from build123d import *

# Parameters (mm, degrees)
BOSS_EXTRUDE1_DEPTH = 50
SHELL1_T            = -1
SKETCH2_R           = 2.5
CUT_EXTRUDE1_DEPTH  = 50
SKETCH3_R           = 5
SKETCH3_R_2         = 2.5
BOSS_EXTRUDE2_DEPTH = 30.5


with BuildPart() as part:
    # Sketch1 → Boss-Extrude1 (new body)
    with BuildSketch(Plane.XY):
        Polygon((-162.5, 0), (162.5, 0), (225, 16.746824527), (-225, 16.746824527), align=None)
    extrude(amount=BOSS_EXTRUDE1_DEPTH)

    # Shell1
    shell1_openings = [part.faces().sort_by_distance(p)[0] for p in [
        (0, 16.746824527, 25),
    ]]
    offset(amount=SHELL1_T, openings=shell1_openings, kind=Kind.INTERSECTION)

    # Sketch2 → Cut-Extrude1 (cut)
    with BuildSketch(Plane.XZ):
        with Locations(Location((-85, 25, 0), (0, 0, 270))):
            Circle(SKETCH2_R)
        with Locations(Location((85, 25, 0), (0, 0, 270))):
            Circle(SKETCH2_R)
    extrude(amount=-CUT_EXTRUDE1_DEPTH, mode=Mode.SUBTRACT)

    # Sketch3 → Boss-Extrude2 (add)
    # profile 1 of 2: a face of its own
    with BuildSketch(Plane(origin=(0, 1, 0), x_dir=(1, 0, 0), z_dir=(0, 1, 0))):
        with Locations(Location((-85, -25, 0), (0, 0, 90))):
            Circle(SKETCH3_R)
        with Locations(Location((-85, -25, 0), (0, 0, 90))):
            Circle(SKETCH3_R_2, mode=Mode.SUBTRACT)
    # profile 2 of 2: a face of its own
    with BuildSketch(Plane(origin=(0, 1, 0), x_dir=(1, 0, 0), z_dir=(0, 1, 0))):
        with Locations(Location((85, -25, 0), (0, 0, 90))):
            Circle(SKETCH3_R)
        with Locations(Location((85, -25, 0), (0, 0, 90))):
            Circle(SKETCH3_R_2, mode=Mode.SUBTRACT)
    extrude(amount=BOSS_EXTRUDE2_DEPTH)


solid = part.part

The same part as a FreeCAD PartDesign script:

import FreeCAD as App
import Part
import Sketcher
Q = App.Units.Quantity


def faces_at(feature, points):
    """Names of the faces that lie closest to the given points."""
    faces = feature.Shape.Faces
    near = lambda p: min(range(len(faces)), key=lambda i: faces[i].distToShape(Part.Vertex(*p))[0])
    return sorted({f"Face{near(p) + 1}" for p in points})


def add_polygon(sketch, points):
    """Adds a closed chain of lines whose ends are joined by coincident constraints."""
    first, n = sketch.GeometryCount, len(points)
    for a, b in zip(points, points[1:] + points[:1]):
        sketch.addGeometry(Part.LineSegment(App.Vector(*a, 0), App.Vector(*b, 0)), False)
    for i in range(n):
        sketch.addConstraint(Sketcher.Constraint("Coincident", first + i, 2, first + (i + 1) % n, 1))

doc = App.newDocument("Part")
params = doc.addObject("Spreadsheet::Sheet", "Params")
for row, (alias, value) in enumerate([
    ("sketch1_width", "325 mm"),
    ("sketch1_width2", "450 mm"),
    ("pad1_length", "50 mm"),
    ("thickness_wall", "1 mm"),
    ("sketch2_diameter", "5 mm"),
    ("pocket1_length", "50 mm"),
    ("sketch3_diameter", "10 mm"),
    ("sketch3_diameter2", "5 mm"),
    ("pad2_length", "30.5 mm"),
], start=1):
    params.set(f"A{row}", alias)
    params.set(f"B{row}", "=" + value)
    params.setAlias(f"B{row}", alias)

body = doc.addObject("PartDesign::Body", "Body")

# Sketch on XY plane
sketch1 = body.newObject("Sketcher::SketchObject", "Sketch")
sketch1.AttachmentSupport = (doc.getObject("XY_Plane"), [""])
sketch1.MapMode = "FlatFace"
add_polygon(sketch1, [(-162, 0), (162, 0), (225, 17), (-225, 17)])  # lines 0-3
sketch1.addConstraint(Sketcher.Constraint("Horizontal", 0))
sketch1.addConstraint(Sketcher.Constraint("Horizontal", 2))
sketch1.addConstraint(Sketcher.Constraint("Symmetric", 0, 2, 3, 2, -1, 1))
sketch1.addConstraint(Sketcher.Constraint("Equal", 1, 3))
sketch1.addConstraint(Sketcher.Constraint("DistanceX", 0, 1, 0, 2, Q("325 mm")))
sketch1.addConstraint(Sketcher.Constraint("DistanceX", 2, 2, 2, 1, Q("450 mm")))
sketch1.addConstraint(Sketcher.Constraint("Angle", 1, Q("15 deg")))
sketch1.setExpression("Constraints[8]", "Params.sketch1_width")
sketch1.setExpression("Constraints[9]", "Params.sketch1_width2")
pad1 = body.newObject("PartDesign::Pad", "Pad")
pad1.Profile = sketch1
pad1.setExpression("Length", "Params.pad1_length")
doc.recompute()

thickness = body.newObject("PartDesign::Thickness", "Thickness")
thickness.Base = (pad1, faces_at(pad1, [(0, 16.747, 25)]))
thickness.setExpression("Value", "Params.thickness_wall")
thickness.Reversed = True
thickness.Join = "Intersection"

# Sketch on XZ plane
sketch2 = body.newObject("Sketcher::SketchObject", "Sketch001")
sketch2.AttachmentSupport = (doc.getObject("XZ_Plane"), [""])
sketch2.MapMode = "FlatFace"
sketch2.addGeometry(Part.Circle(App.Vector(-85, 25, 0), App.Vector(0, 0, 1), 2.5), False)
sketch2.addGeometry(Part.Circle(App.Vector(85, 25, 0), App.Vector(0, 0, 1), 2.5), False)
sketch2.addConstraint(Sketcher.Constraint("Equal", 0, 1))
sketch2.addConstraint(Sketcher.Constraint("Symmetric", 0, 3, 1, 3, -2))
sketch2.addConstraint(Sketcher.Constraint("Diameter", 0, Q("5 mm")))
sketch2.addConstraint(Sketcher.Constraint("DistanceX", 0, 3, -1, 1, Q("85 mm")))
sketch2.addConstraint(Sketcher.Constraint("DistanceY", -1, 1, 0, 3, Q("25 mm")))
sketch2.setExpression("Constraints[2]", "Params.sketch2_diameter")
pocket1 = body.newObject("PartDesign::Pocket", "Pocket")
pocket1.Profile = sketch2
pocket1.setExpression("Length", "Params.pocket1_length")

# Sketch on XZ plane
sketch3 = body.newObject("Sketcher::SketchObject", "Sketch002")
sketch3.AttachmentSupport = (doc.getObject("XZ_Plane"), [""])
sketch3.MapMode = "FlatFace"
sketch3.AttachmentOffset = App.Placement(App.Vector(0, 0, -1), App.Rotation())
sketch3.addGeometry(Part.Circle(App.Vector(-85, 25, 0), App.Vector(0, 0, 1), 5), False)
sketch3.addGeometry(Part.Circle(App.Vector(-85, 25, 0), App.Vector(0, 0, 1), 2.5), False)
sketch3.addGeometry(Part.Circle(App.Vector(85, 25, 0), App.Vector(0, 0, 1), 5), False)
sketch3.addGeometry(Part.Circle(App.Vector(85, 25, 0), App.Vector(0, 0, 1), 2.5), False)
sketch3.addConstraint(Sketcher.Constraint("Coincident", 1, 3, 0, 3))
sketch3.addConstraint(Sketcher.Constraint("Coincident", 3, 3, 2, 3))
sketch3.addConstraint(Sketcher.Constraint("Equal", 0, 2))
sketch3.addConstraint(Sketcher.Constraint("Equal", 1, 3))
sketch3.addConstraint(Sketcher.Constraint("Symmetric", 0, 3, 2, 3, -2))
sketch3.addConstraint(Sketcher.Constraint("Diameter", 0, Q("10 mm")))
sketch3.addConstraint(Sketcher.Constraint("Diameter", 1, Q("5 mm")))
sketch3.addConstraint(Sketcher.Constraint("DistanceX", 0, 3, -1, 1, Q("85 mm")))
sketch3.addConstraint(Sketcher.Constraint("DistanceY", -1, 1, 0, 3, Q("25 mm")))
sketch3.setExpression("Constraints[5]", "Params.sketch3_diameter")
sketch3.setExpression("Constraints[6]", "Params.sketch3_diameter2")
pad2 = body.newObject("PartDesign::Pad", "Pad001")
pad2.Profile = sketch3
pad2.setExpression("Length", "Params.pad2_length")
pad2.Reversed = True

doc.recompute()
